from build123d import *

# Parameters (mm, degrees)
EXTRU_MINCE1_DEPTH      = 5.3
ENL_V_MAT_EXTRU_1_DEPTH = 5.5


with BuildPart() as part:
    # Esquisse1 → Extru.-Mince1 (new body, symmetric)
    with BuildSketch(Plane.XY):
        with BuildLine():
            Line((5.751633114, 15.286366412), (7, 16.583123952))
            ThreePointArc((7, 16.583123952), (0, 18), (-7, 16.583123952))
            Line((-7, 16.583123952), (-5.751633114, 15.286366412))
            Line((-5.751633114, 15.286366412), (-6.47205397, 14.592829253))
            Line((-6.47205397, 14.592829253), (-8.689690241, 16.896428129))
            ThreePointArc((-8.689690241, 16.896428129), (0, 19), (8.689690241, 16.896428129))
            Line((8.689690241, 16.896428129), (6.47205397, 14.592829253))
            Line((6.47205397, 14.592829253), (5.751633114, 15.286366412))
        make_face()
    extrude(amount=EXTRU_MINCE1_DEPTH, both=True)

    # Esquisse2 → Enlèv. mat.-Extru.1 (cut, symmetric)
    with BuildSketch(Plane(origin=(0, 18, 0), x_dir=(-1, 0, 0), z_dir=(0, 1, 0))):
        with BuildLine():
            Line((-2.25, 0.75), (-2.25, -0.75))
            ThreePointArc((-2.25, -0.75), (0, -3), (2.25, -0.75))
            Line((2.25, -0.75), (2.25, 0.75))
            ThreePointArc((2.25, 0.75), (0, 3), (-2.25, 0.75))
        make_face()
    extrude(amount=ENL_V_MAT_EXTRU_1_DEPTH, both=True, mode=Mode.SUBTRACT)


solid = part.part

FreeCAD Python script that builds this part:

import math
import FreeCAD as App
import Part
import Sketcher

doc = App.newDocument("Part")
body = doc.addObject("PartDesign::Body", "Body")

# Sketch on XY plane
sketch1 = body.newObject("Sketcher::SketchObject", "Sketch")
sketch1.AttachmentSupport = (doc.getObject("XY_Plane"), [""])
sketch1.MapMode = "FlatFace"
sketch1.addGeometry([
    Part.LineSegment(App.Vector(7, 16.6, 0), App.Vector(5.8, 15.3, 0)),  # 0
    Part.LineSegment(App.Vector(5.8, 15.3, 0), App.Vector(6.5, 14.6, 0)),  # 1
    Part.LineSegment(App.Vector(6.5, 14.6, 0), App.Vector(8.7, 16.9, 0)),  # 2
    Part.ArcOfCircle(Part.Circle(App.Vector(0, 0, 0), App.Vector(0, 0, 1), 19), math.radians(63), math.radians(117)),  # 3
    Part.LineSegment(App.Vector(-8.7, 16.9, 0), App.Vector(-6.5, 14.6, 0)),  # 4
    Part.LineSegment(App.Vector(-6.5, 14.6, 0), App.Vector(-5.8, 15.3, 0)),  # 5
    Part.LineSegment(App.Vector(-5.8, 15.3, 0), App.Vector(-7, 16.6, 0)),  # 6
    Part.ArcOfCircle(Part.Circle(App.Vector(0, 0, 0), App.Vector(0, 0, 1), 18), math.radians(67), math.radians(113)),  # 7
], False)
sketch1.addConstraint([
    Sketcher.Constraint("Coincident", 0, 2, 1, 1),
    Sketcher.Constraint("Coincident", 1, 2, 2, 1),
    Sketcher.Constraint("Coincident", 2, 2, 3, 1),
    Sketcher.Constraint("Coincident", 3, 2, 4, 1),
    Sketcher.Constraint("Coincident", 4, 2, 5, 1),
    Sketcher.Constraint("Coincident", 5, 2, 6, 1),
    Sketcher.Constraint("Coincident", 6, 2, 7, 2),
    Sketcher.Constraint("Coincident", 7, 1, 0, 1),
    Sketcher.Constraint("Coincident", 3, 3, -1, 1),
    Sketcher.Constraint("Coincident", 7, 3, -1, 1),
    Sketcher.Constraint("Symmetric", 1, 2, 4, 2, -2),
    Sketcher.Constraint("Symmetric", 0, 2, 5, 2, -2),
    Sketcher.Constraint("Perpendicular", 0, 1),
    Sketcher.Constraint("Perpendicular", 1, 2),
    Sketcher.Constraint("Perpendicular", 4, 5),
    Sketcher.Constraint("Perpendicular", 5, 6),
    Sketcher.Constraint("Radius", 3, 19.0),
    Sketcher.Constraint("Radius", 7, 18.0),
    Sketcher.Constraint("Distance", 1, 1.0),
    Sketcher.Constraint("DistanceX", 6, 2, -1, 1, 7.0),
    Sketcher.Constraint("Distance", 0, 1.8),
    Sketcher.Constraint("DistanceY", 1, 2, 2, 2, 2.303599),
])
pad1 = body.newObject("PartDesign::Pad", "Pad")
pad1.Profile = sketch1
pad1.Length = 10.6
pad1.Midplane = True

# Sketch on XZ plane
sketch2 = body.newObject("Sketcher::SketchObject", "Sketch001")
sketch2.AttachmentSupport = (doc.getObject("XZ_Plane"), [""])
sketch2.MapMode = "FlatFace"
sketch2.AttachmentOffset = App.Placement(App.Vector(0, 0, -18), App.Rotation())
sketch2.addGeometry([
    Part.LineSegment(App.Vector(2.2, 0.8, 0), App.Vector(2.2, -0.8, 0)),
    Part.ArcOfCircle(Part.Circle(App.Vector(0, -0.8, 0), App.Vector(0, 0, 1), 2.2), math.radians(180), math.radians(360)),
    Part.LineSegment(App.Vector(-2.2, -0.8, 0), App.Vector(-2.2, 0.8, 0)),
    Part.ArcOfCircle(Part.Circle(App.Vector(0, 0.8, 0), App.Vector(0, 0, 1), 2.2), math.radians(0), math.radians(180)),
], False)
sketch2.addConstraint([
    Sketcher.Constraint("Tangent", 0, 2, 1, 2),
    Sketcher.Constraint("Tangent", 1, 1, 2, 1),
    Sketcher.Constraint("Tangent", 2, 2, 3, 2),
    Sketcher.Constraint("Tangent", 3, 1, 0, 1),
    Sketcher.Constraint("Vertical", 0),
    Sketcher.Constraint("Vertical", 2),
    Sketcher.Constraint("Symmetric", 1, 3, 3, 3, -1, 1),
    Sketcher.Constraint("Radius", 1, 2.25),
    Sketcher.Constraint("DistanceY", 0, 2, 0, 1, 1.5),
])
pocket1 = body.newObject("PartDesign::Pocket", "Pocket")
pocket1.Profile = sketch2
pocket1.Length = 11
pocket1.Midplane = True

doc.recompute()
